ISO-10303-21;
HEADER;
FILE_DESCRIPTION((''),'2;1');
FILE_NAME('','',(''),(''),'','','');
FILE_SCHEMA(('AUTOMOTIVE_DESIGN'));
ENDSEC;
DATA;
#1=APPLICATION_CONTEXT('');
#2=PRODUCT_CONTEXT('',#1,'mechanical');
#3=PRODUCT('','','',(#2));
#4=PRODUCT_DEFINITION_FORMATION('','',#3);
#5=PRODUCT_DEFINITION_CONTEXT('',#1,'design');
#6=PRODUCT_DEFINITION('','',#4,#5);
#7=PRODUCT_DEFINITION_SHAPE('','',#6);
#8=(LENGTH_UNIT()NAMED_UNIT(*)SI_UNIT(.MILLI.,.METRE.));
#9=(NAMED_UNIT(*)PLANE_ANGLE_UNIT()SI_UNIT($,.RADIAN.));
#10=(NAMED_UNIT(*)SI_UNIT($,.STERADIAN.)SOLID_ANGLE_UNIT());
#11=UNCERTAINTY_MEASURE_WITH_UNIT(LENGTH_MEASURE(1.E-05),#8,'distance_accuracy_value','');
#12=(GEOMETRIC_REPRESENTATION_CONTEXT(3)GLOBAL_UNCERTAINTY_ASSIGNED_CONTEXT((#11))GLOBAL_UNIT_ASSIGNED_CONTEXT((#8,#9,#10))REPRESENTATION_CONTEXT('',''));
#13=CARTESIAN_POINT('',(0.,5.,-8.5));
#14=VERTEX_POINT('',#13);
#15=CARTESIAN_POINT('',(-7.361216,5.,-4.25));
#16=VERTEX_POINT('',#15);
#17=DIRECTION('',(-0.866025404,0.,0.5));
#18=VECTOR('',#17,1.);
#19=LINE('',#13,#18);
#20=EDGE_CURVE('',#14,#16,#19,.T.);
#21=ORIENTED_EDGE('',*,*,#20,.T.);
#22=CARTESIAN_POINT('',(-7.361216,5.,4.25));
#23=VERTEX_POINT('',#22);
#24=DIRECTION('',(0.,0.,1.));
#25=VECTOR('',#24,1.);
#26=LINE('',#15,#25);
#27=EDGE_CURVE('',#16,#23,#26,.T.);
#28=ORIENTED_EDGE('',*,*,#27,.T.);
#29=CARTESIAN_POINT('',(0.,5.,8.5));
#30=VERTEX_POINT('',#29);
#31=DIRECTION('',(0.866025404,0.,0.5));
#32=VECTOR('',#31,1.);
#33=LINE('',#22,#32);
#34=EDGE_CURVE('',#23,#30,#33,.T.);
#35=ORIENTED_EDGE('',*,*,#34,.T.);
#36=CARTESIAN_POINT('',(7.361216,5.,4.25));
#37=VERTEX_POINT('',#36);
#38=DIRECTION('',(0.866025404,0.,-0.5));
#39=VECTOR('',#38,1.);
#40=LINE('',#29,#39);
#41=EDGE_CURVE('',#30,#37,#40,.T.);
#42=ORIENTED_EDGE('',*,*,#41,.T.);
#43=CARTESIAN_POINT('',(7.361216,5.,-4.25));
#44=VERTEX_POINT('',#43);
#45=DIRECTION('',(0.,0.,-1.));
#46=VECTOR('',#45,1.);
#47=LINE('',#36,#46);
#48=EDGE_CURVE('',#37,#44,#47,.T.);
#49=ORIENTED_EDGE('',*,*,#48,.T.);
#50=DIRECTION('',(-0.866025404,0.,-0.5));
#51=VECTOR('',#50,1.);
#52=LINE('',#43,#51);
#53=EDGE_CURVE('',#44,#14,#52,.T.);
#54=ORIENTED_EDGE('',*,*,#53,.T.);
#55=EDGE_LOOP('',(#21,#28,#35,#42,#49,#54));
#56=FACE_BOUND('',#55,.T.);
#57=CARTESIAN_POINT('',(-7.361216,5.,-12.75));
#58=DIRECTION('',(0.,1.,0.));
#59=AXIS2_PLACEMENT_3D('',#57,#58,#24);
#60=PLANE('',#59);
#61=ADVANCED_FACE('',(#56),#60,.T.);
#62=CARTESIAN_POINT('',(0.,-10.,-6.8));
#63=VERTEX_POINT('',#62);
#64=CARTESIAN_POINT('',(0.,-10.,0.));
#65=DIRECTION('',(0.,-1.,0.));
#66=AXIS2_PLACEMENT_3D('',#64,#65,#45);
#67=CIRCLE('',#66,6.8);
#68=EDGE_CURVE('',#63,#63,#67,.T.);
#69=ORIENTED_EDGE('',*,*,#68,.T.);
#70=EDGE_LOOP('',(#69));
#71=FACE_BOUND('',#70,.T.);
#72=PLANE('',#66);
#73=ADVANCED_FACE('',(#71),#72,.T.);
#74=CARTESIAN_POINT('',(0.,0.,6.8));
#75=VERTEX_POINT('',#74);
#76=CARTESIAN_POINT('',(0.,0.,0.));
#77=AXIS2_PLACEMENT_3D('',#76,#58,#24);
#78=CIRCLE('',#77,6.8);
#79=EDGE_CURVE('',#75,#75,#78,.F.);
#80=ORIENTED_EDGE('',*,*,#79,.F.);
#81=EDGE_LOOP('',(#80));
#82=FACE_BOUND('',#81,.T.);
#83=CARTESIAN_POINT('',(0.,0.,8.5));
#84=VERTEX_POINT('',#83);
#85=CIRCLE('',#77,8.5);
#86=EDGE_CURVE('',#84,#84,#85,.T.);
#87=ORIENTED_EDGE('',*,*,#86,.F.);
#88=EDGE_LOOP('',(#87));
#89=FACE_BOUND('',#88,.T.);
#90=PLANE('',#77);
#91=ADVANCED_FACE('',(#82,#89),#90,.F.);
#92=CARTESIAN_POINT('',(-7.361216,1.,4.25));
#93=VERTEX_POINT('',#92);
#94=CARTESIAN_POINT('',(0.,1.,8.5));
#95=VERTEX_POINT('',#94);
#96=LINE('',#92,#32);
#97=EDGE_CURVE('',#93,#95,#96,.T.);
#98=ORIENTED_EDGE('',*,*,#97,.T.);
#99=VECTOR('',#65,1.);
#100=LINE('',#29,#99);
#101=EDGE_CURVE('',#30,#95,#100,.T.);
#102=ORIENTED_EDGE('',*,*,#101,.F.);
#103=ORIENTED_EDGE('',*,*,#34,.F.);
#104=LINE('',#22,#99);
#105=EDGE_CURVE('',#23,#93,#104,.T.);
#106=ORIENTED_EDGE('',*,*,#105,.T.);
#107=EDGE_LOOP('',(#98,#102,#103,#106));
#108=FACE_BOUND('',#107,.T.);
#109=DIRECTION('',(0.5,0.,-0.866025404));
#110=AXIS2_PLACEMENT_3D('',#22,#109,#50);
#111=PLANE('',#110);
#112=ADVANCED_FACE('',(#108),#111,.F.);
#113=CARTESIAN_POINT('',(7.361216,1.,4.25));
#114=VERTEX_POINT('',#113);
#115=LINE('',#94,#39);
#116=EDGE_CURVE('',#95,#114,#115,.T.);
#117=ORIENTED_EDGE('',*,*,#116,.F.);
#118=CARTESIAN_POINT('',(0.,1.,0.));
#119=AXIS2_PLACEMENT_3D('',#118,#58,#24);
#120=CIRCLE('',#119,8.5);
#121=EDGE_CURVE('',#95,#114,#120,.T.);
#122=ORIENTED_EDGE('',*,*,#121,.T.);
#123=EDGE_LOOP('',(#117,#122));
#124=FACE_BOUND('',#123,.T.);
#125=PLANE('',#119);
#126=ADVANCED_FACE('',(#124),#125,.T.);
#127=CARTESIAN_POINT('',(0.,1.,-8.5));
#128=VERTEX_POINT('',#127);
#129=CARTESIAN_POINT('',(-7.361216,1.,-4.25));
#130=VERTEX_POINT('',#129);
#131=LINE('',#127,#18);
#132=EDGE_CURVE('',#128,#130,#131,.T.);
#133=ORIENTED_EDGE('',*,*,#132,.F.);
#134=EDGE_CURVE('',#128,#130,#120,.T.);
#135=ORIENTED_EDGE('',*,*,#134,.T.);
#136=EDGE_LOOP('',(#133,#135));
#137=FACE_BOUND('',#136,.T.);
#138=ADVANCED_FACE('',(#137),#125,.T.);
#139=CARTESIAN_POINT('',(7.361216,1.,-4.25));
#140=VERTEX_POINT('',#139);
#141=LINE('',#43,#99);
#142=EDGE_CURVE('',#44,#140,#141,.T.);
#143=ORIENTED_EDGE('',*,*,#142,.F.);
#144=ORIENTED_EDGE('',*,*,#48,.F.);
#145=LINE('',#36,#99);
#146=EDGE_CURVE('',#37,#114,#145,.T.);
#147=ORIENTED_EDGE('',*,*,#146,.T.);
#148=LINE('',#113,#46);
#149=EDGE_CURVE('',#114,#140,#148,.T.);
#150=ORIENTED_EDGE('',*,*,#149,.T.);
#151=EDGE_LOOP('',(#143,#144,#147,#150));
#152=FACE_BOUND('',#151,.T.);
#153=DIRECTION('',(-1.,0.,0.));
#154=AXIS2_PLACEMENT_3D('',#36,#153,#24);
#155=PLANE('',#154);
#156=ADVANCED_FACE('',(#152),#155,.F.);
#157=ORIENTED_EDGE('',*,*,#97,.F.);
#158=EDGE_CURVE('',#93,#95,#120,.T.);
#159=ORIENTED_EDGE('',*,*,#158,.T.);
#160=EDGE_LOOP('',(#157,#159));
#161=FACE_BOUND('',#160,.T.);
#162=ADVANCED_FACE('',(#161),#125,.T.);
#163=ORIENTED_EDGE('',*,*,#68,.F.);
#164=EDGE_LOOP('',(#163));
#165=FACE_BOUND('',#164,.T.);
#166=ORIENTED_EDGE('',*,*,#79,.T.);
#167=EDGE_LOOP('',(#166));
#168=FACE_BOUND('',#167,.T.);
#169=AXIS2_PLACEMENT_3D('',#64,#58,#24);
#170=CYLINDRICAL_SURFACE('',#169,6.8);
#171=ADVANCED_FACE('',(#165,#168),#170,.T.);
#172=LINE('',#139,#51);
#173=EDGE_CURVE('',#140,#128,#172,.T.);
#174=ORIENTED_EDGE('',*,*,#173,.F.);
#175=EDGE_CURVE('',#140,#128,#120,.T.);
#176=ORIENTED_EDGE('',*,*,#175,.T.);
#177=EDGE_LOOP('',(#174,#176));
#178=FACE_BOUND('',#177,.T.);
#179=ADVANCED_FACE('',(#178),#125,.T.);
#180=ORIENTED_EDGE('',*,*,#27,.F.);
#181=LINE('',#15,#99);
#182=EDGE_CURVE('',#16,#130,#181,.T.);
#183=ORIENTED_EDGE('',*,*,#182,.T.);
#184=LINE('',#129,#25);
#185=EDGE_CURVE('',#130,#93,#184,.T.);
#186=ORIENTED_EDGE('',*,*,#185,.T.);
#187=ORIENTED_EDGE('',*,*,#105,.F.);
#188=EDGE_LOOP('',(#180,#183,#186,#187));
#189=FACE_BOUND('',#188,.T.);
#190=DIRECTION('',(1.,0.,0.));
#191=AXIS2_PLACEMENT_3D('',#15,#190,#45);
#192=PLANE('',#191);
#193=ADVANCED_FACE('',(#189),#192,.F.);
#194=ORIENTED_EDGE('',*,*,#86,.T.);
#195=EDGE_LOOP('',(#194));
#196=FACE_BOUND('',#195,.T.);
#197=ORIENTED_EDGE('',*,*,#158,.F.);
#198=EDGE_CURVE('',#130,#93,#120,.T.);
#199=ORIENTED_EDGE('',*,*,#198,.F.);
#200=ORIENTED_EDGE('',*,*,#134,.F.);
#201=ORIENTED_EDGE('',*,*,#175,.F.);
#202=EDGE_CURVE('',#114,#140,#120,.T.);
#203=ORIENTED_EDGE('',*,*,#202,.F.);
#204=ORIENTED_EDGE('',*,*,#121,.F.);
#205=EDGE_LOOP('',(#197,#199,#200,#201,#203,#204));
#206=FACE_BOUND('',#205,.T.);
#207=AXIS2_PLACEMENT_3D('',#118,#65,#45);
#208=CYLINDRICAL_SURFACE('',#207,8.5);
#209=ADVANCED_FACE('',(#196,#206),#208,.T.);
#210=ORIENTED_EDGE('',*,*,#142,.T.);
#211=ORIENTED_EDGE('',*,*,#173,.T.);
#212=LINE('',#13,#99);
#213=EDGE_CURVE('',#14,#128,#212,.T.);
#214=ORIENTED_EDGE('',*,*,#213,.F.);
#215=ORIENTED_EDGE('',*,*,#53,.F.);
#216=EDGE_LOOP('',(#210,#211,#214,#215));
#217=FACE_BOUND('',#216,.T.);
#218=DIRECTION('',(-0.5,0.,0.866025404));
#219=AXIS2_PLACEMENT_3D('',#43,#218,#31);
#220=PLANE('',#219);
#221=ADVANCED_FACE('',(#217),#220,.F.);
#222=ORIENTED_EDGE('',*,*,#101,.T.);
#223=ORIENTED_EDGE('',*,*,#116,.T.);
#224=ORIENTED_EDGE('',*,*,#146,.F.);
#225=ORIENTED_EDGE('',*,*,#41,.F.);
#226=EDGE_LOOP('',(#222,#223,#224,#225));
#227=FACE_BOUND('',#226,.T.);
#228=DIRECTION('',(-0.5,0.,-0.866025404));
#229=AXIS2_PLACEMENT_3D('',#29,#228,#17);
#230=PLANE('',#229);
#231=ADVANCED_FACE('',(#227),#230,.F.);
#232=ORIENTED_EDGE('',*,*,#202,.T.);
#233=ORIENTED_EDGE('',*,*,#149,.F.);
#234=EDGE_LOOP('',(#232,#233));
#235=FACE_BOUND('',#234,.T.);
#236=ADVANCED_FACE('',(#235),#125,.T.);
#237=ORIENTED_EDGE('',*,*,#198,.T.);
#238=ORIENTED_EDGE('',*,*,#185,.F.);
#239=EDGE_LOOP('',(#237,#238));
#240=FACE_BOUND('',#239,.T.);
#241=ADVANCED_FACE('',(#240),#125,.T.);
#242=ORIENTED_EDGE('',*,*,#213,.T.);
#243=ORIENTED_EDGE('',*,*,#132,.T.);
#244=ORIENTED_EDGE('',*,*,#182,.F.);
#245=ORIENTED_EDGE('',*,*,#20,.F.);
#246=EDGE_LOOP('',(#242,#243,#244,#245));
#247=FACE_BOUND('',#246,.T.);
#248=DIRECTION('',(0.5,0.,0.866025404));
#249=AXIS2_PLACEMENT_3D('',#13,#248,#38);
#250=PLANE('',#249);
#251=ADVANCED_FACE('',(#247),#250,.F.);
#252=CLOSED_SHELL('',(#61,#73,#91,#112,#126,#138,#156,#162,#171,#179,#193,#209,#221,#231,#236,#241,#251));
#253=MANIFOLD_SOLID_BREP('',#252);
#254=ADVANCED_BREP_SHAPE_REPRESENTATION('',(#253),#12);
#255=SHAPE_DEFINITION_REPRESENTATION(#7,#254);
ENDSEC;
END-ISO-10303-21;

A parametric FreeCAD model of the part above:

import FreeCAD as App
import Part
import Sketcher

V = App.Vector
Q = App.Units.Quantity

doc = App.newDocument("Part")
params = doc.addObject("Spreadsheet::Sheet", "Params")
for row, (alias, value) in enumerate([
    ("sketch1_diameter", "17 mm"),
    ("pad1_length", "1 mm"),
    ("sketch2_height", "8.5 mm"),
    ("pad2_length", "4 mm"),
    ("sketch3_diameter", "13.6 mm"),
    ("pad3_length", "10 mm"),
], start=1):
    params.set(f"A{row}", alias)
    params.set(f"B{row}", "=" + value)
    params.setAlias(f"B{row}", alias)

body = doc.addObject("PartDesign::Body", "Body")

# Sketch on XZ plane
sketch1 = doc.addObject("Sketcher::SketchObject", "Sketch")
body.addObject(sketch1)
sketch1.AttachmentSupport = (doc.XZ_Plane, [""])
sketch1.MapMode = "FlatFace"
sketch1.addGeometry(Part.Circle(V(0, 0, 0), V(0, 0, 1), 8), False)
sketch1.addConstraint(Sketcher.Constraint("Coincident", 0, 3, -1, 1))
sketch1.addConstraint(Sketcher.Constraint("Diameter", 0, 17.0))
sketch1.setExpression("Constraints[1]", "Params.sketch1_diameter")
pad1 = doc.addObject("PartDesign::Pad", "Pad")
body.addObject(pad1)
pad1.Profile = sketch1
pad1.setExpression("Length", "Params.pad1_length")
pad1.Reversed = True

# Sketch on XZ plane
sketch2 = doc.addObject("Sketcher::SketchObject", "Sketch001")
body.addObject(sketch2)
sketch2.AttachmentSupport = (doc.XZ_Plane, [""])
sketch2.MapMode = "FlatFace"
sketch2.AttachmentOffset = App.Placement(V(0, 0, -1), App.Rotation())
sketch2.addGeometry(Part.LineSegment(V(0, -8, 0), V(-7, -4, 0)), False)
sketch2.addGeometry(Part.LineSegment(V(-7, -4, 0), V(-7, 4, 0)), False)
sketch2.addGeometry(Part.LineSegment(V(-7, 4, 0), V(0, 8, 0)), False)
sketch2.addGeometry(Part.LineSegment(V(0, 8, 0), V(7, 4, 0)), False)
sketch2.addGeometry(Part.LineSegment(V(7, 4, 0), V(7, -4, 0)), False)
sketch2.addGeometry(Part.LineSegment(V(7, -4, 0), V(0, -8, 0)), False)
sketch2.addConstraint(Sketcher.Constraint("Coincident", 0, 2, 1, 1))
sketch2.addConstraint(Sketcher.Constraint("Coincident", 1, 2, 2, 1))
sketch2.addConstraint(Sketcher.Constraint("Coincident", 2, 2, 3, 1))
sketch2.addConstraint(Sketcher.Constraint("Coincident", 3, 2, 4, 1))
sketch2.addConstraint(Sketcher.Constraint("Coincident", 4, 2, 5, 1))
sketch2.addConstraint(Sketcher.Constraint("Coincident", 5, 2, 0, 1))
sketch2.addConstraint(Sketcher.Constraint("Vertical", 1))
sketch2.addConstraint(Sketcher.Constraint("Vertical", 4))
sketch2.addConstraint(Sketcher.Constraint("Symmetric", 0, 2, 3, 2, -1, 1))
sketch2.addConstraint(Sketcher.Constraint("Symmetric", 2, 2, 5, 2, -1, 1))
sketch2.addConstraint(Sketcher.Constraint("PointOnObject", 2, 2, -2))
sketch2.addConstraint(Sketcher.Constraint("Parallel", 2, 5))
sketch2.addConstraint(Sketcher.Constraint("Horizontal", 1, 2, 3, 2))
sketch2.addConstraint(Sketcher.Constraint("Angle", 0, Q("150 deg")))
sketch2.addConstraint(Sketcher.Constraint("DistanceY", 1, 1, 1, 2, 8.5))
sketch2.addConstraint(Sketcher.Constraint("DistanceY", 5, 2, 2, 2, 17.0))
sketch2.setExpression("Constraints[14]", "Params.sketch2_height")
pad2 = doc.addObject("PartDesign::Pad", "Pad001")
body.addObject(pad2)
pad2.Profile = sketch2
pad2.setExpression("Length", "Params.pad2_length")
pad2.Reversed = True

# Sketch on XZ plane
sketch3 = doc.addObject("Sketcher::SketchObject", "Sketch002")
body.addObject(sketch3)
sketch3.AttachmentSupport = (doc.XZ_Plane, [""])
sketch3.MapMode = "FlatFace"
sketch3.addGeometry(Part.Circle(V(0, 0, 0), V(0, 0, 1), 7), False)
sketch3.addConstraint(Sketcher.Constraint("Coincident", 0, 3, -1, 1))
sketch3.addConstraint(Sketcher.Constraint("Diameter", 0, 13.6))
sketch3.setExpression("Constraints[1]", "Params.sketch3_diameter")
pad3 = doc.addObject("PartDesign::Pad", "Pad002")
body.addObject(pad3)
pad3.Profile = sketch3
pad3.setExpression("Length", "Params.pad3_length")

doc.recompute()
